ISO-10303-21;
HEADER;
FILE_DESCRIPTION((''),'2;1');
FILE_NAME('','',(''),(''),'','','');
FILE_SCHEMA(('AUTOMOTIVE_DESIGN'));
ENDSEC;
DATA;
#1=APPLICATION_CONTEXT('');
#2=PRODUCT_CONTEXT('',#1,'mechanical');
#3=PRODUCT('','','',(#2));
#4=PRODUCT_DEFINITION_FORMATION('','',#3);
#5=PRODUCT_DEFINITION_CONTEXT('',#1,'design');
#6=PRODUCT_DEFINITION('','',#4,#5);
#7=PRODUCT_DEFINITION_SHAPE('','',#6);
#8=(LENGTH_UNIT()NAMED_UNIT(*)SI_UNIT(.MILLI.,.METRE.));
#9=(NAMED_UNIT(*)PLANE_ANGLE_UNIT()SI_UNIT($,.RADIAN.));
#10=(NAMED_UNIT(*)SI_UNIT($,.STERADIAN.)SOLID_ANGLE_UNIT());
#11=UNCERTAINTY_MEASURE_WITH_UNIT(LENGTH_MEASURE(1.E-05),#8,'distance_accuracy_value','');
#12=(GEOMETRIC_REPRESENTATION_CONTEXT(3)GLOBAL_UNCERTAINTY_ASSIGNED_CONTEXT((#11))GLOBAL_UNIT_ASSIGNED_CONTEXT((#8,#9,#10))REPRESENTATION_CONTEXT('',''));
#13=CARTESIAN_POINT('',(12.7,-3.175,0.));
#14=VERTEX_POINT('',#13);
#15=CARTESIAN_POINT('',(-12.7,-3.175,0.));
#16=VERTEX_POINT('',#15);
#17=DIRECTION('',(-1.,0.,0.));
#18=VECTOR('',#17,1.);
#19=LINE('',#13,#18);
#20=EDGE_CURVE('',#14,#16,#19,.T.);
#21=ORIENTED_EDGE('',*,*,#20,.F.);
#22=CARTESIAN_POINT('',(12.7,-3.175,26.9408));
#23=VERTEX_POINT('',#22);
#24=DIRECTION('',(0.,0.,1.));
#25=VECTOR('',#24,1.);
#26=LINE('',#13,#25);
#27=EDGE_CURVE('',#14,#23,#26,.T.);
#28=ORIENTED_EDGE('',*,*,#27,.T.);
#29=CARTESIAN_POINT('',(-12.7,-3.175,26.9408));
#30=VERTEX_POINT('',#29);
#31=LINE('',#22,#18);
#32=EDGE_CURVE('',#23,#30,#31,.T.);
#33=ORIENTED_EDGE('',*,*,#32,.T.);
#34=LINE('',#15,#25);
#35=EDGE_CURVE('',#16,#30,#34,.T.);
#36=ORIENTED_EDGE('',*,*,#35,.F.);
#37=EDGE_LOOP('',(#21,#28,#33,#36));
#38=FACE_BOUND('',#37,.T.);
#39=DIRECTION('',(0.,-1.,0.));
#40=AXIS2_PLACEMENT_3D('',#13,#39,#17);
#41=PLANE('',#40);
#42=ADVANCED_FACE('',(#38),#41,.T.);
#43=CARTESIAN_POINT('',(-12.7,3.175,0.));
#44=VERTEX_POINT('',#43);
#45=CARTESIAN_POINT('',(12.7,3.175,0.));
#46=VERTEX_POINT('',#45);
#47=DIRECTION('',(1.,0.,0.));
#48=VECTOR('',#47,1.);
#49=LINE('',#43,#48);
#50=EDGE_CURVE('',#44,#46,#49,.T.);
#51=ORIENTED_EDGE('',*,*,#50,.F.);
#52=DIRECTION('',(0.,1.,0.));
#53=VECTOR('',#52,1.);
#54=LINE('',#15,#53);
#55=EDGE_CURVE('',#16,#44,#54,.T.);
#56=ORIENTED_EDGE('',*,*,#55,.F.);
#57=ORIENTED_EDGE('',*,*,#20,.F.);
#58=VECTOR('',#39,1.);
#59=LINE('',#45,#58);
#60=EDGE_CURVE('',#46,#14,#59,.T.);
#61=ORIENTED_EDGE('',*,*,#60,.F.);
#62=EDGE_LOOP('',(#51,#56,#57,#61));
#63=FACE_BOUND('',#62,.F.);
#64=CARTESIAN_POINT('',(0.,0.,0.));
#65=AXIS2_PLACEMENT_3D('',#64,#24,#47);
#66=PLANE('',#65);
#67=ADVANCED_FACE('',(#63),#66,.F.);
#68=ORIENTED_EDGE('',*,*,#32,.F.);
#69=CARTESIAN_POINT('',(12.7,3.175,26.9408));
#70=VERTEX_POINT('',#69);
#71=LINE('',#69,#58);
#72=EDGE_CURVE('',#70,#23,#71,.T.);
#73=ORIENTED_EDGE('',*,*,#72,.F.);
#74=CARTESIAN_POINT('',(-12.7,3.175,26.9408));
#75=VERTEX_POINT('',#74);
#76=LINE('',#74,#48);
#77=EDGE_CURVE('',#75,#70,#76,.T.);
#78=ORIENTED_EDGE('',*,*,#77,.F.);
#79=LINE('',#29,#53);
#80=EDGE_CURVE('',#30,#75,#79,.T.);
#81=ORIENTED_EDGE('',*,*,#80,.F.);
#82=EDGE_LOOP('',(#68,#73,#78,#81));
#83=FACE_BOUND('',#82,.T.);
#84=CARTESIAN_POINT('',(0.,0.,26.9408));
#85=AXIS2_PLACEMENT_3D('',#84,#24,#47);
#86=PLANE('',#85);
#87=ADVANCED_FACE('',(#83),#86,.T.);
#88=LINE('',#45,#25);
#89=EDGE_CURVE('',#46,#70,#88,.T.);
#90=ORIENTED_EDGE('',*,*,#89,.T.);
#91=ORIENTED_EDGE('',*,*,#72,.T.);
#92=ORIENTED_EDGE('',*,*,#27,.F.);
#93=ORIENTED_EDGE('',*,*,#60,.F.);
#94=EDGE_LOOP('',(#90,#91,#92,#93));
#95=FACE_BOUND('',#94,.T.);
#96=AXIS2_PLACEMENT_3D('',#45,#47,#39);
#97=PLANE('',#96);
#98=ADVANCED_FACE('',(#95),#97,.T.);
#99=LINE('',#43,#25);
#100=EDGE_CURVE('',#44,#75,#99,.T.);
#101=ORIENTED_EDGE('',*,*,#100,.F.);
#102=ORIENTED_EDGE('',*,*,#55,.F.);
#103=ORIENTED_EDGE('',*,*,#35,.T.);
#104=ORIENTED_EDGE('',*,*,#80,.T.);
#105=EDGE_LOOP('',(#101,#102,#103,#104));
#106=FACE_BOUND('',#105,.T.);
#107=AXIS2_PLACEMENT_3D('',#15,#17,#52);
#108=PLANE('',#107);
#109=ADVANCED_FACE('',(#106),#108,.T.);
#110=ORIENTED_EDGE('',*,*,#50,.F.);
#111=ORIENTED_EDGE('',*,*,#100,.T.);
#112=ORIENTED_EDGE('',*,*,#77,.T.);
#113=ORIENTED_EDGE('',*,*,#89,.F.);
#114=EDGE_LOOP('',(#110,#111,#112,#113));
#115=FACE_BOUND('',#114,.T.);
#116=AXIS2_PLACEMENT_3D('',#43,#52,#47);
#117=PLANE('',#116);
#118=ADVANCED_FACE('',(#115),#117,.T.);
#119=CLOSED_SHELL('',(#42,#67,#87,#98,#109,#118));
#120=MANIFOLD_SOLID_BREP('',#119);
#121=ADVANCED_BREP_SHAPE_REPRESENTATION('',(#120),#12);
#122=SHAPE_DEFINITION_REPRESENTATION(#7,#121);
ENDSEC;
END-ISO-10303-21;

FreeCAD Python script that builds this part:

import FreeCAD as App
import Part
import Sketcher
Q = App.Units.Quantity

doc = App.newDocument("Part")
body = doc.addObject("PartDesign::Body", "Body")

# Sketch on XY plane
sketch1 = doc.addObject("Sketcher::SketchObject", "Sketch")
body.addObject(sketch1)
sketch1.AttachmentSupport = (doc.XY_Plane, [""])
sketch1.MapMode = "FlatFace"
sketch1.addGeometry([
    Part.LineSegment(App.Vector(-13, -3, 0), App.Vector(13, -3, 0)),
    Part.LineSegment(App.Vector(13, -3, 0), App.Vector(13, 3, 0)),
    Part.LineSegment(App.Vector(13, 3, 0), App.Vector(-13, 3, 0)),
    Part.LineSegment(App.Vector(-13, 3, 0), App.Vector(-13, -3, 0)),
], False)
sketch1.addConstraint([
    Sketcher.Constraint("Coincident", 0, 2, 1, 1),
    Sketcher.Constraint("Coincident", 1, 2, 2, 1),
    Sketcher.Constraint("Coincident", 2, 2, 3, 1),
    Sketcher.Constraint("Coincident", 3, 2, 0, 1),
    Sketcher.Constraint("Horizontal", 0),
    Sketcher.Constraint("Vertical", 1),
    Sketcher.Constraint("Horizontal", 2),
    Sketcher.Constraint("Vertical", 3),
    Sketcher.Constraint("Symmetric", 0, 2, 2, 2, -1, 1),
    Sketcher.Constraint("DistanceX", 0, 1, 0, 2, Q("1 in")),
    Sketcher.Constraint("DistanceY", 1, 1, 1, 2, Q("0.25 in")),
])
pad1 = doc.addObject("PartDesign::Pad", "Pad")
body.addObject(pad1)
pad1.Profile = sketch1
pad1.Length = 26.9408

doc.recompute()
